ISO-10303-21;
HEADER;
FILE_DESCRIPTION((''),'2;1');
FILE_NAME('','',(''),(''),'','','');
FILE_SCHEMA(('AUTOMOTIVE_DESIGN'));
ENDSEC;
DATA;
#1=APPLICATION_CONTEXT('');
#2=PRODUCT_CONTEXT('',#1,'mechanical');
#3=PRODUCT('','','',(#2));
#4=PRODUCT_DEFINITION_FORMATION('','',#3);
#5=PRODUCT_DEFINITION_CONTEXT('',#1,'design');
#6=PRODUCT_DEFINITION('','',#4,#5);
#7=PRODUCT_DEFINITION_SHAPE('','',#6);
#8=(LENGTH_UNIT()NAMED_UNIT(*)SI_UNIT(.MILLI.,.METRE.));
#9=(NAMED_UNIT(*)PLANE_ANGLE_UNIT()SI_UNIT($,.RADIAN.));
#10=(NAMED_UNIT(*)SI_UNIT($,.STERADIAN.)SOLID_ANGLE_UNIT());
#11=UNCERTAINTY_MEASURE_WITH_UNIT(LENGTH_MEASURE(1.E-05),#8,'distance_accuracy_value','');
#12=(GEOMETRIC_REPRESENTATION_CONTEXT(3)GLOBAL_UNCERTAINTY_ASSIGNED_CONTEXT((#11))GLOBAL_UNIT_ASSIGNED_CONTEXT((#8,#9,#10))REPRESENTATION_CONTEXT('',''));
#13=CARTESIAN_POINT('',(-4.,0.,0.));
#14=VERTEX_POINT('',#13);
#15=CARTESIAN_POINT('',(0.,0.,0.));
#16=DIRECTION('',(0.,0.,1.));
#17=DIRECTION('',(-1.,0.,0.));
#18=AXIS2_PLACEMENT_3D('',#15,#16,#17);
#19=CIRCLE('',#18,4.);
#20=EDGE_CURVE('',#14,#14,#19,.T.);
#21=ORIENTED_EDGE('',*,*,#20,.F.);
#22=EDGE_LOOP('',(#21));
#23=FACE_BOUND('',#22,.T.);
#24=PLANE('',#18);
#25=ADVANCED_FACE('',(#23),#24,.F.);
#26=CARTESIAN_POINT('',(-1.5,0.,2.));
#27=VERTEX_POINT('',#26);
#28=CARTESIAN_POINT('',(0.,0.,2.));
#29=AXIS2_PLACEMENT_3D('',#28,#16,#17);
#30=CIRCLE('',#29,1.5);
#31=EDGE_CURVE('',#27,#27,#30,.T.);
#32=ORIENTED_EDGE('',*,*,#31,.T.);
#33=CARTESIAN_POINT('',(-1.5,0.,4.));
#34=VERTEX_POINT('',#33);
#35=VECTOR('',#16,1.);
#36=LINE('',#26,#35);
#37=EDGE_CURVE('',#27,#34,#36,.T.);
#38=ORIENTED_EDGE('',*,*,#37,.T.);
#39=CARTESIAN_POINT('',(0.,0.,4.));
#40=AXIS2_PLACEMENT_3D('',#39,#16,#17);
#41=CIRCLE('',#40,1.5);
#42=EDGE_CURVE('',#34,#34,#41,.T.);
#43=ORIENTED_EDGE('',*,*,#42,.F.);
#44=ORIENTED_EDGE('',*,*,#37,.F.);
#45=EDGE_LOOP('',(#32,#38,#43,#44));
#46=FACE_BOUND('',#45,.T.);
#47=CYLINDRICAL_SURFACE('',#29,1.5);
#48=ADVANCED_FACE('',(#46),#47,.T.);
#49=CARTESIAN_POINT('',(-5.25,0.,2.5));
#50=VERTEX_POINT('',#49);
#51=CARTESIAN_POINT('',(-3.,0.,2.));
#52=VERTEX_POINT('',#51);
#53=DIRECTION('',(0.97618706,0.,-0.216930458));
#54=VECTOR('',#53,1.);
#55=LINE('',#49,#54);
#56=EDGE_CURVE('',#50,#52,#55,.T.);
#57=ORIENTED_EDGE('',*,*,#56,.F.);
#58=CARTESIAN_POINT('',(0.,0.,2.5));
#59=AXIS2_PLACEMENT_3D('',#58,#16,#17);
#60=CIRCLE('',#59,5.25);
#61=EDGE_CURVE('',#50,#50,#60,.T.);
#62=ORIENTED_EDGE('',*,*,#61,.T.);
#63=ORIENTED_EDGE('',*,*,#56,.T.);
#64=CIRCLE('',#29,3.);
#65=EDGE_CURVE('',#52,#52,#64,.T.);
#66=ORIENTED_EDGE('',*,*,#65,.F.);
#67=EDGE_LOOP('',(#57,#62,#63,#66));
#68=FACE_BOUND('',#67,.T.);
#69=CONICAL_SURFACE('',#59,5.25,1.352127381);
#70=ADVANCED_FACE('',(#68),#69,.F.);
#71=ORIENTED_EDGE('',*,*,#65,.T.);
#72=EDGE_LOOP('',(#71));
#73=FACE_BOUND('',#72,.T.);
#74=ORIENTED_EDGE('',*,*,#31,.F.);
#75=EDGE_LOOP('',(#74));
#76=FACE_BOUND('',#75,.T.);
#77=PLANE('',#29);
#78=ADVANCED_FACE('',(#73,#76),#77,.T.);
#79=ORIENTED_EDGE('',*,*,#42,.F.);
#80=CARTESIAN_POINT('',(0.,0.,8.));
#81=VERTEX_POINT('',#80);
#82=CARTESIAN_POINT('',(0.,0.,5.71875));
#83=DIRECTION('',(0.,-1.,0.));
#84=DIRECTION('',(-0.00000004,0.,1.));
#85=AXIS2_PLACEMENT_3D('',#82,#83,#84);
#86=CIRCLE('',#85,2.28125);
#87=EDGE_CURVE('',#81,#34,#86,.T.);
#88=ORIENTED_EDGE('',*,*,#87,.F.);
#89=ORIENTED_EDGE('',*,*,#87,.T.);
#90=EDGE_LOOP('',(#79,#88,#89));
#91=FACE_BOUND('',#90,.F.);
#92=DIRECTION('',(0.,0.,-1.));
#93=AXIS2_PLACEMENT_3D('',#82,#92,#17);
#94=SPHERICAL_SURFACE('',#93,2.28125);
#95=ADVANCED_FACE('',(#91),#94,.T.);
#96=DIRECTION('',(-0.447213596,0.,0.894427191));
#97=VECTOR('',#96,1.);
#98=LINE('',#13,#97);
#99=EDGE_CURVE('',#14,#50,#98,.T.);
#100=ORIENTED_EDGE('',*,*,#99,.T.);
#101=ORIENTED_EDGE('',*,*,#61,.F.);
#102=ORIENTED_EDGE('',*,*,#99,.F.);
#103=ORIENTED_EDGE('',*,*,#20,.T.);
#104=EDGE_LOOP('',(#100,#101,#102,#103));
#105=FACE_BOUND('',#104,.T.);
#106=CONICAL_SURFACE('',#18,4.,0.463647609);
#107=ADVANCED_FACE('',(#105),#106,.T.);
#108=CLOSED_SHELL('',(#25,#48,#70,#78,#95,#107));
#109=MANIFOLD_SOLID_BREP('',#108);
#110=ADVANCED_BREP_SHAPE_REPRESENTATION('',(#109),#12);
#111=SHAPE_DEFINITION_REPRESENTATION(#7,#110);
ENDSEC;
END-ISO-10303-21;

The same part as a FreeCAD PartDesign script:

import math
import FreeCAD as App
import Part
import Sketcher

doc = App.newDocument("Part")
body = doc.addObject("PartDesign::Body", "Body")

sketch1 = body.newObject("Sketcher::SketchObject", "Sketch")
sketch1.AttachmentSupport = (doc.getObject("XZ_Plane"), [""])
sketch1.MapMode = "FlatFace"
sketch1.addGeometry([
    Part.LineSegment(App.Vector(-4, 0, 0), App.Vector(0, 0, 0)),
    Part.LineSegment(App.Vector(0, 0, 0), App.Vector(0, 8, 0)),
    Part.ArcOfCircle(Part.Circle(App.Vector(0, 5.7, 0), App.Vector(0, 0, 1), 2.3), math.radians(90), math.radians(229)),
    Part.LineSegment(App.Vector(-1.5, 4, 0), App.Vector(-1.5, 2, 0)),
    Part.LineSegment(App.Vector(-1.5, 2, 0), App.Vector(-3, 2, 0)),
    Part.LineSegment(App.Vector(-3, 2, 0), App.Vector(-5.2, 2.5, 0)),
    Part.LineSegment(App.Vector(-5.2, 2.5, 0), App.Vector(-4, 0, 0)),
], False)
sketch1.addConstraint([
    Sketcher.Constraint("Coincident", 0, 2, 1, 1),
    Sketcher.Constraint("Coincident", 1, 2, 2, 1),
    Sketcher.Constraint("Coincident", 2, 2, 3, 1),
    Sketcher.Constraint("Coincident", 3, 2, 4, 1),
    Sketcher.Constraint("Coincident", 4, 2, 5, 1),
    Sketcher.Constraint("Coincident", 5, 2, 6, 1),
    Sketcher.Constraint("Coincident", 6, 2, 0, 1),
    Sketcher.Constraint("Horizontal", 0),
    Sketcher.Constraint("Vertical", 1),
    Sketcher.Constraint("Vertical", 3),
    Sketcher.Constraint("Horizontal", 4),
    Sketcher.Constraint("Coincident", 0, 2, -1, 1),
    Sketcher.Constraint("PointOnObject", 2, 3, -2),
    Sketcher.Constraint("DistanceX", 0, 1, 0, 2, 4.0),
    Sketcher.Constraint("DistanceY", 1, 1, 1, 2, 8.0),
    Sketcher.Constraint("DistanceY", 3, 2, 3, 1, 2.0),
    Sketcher.Constraint("DistanceX", 4, 2, 4, 1, 1.5),
    Sketcher.Constraint("DistanceY", -1, 1, 2, 2, 4.0),
    Sketcher.Constraint("DistanceX", 4, 2, -1, 1, 3.0),
    Sketcher.Constraint("DistanceY", -1, 1, 5, 2, 2.5),
    Sketcher.Constraint("DistanceX", 5, 2, -1, 1, 5.25),
])
revolution = body.newObject("PartDesign::Revolution", "Revolution")
revolution.Profile = sketch1
revolution.ReferenceAxis = (sketch1, ["V_Axis"])
revolution.Angle = 360

doc.recompute()
